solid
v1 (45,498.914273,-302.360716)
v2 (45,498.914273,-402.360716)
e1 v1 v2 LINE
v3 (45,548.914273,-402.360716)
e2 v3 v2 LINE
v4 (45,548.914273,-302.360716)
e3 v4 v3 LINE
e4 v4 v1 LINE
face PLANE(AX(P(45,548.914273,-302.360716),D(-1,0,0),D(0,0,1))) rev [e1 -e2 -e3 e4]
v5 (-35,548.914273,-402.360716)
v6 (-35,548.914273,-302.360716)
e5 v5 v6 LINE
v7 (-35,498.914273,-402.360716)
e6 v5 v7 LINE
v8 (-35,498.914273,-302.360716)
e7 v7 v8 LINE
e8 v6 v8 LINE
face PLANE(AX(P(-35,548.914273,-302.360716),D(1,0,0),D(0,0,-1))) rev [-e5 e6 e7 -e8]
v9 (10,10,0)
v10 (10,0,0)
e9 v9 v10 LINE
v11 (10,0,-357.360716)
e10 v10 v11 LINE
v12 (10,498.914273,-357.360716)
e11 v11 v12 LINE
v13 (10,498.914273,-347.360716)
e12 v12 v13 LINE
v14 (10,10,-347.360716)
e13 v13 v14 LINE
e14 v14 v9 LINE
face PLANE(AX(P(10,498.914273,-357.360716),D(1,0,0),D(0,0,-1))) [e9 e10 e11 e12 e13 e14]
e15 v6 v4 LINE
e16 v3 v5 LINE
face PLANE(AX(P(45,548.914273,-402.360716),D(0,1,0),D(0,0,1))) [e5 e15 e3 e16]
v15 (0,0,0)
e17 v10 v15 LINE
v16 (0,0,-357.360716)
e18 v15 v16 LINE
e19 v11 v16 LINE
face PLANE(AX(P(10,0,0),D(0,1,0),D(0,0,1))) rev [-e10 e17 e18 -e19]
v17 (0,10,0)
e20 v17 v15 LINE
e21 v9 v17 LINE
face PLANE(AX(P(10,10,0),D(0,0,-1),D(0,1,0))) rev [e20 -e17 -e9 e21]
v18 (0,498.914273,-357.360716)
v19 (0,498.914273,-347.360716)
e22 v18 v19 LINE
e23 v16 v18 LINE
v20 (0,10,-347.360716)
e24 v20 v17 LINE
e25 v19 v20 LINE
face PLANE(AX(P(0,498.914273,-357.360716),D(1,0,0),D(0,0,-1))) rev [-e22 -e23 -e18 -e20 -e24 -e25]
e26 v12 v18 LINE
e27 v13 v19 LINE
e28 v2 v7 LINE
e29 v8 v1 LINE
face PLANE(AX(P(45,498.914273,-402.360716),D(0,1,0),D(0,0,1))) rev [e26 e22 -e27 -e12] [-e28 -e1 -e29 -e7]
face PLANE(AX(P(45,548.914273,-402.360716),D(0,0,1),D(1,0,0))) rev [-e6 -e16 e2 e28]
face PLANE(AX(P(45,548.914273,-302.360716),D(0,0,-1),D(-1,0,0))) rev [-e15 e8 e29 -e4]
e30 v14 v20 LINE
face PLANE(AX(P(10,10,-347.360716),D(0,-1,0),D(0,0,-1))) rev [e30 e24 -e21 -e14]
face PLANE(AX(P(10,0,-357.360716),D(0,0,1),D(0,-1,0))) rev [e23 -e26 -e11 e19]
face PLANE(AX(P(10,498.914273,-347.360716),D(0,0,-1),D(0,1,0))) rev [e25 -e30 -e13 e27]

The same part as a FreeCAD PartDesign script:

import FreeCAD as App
import Part
import Sketcher
Q = App.Units.Quantity


def add_polygon(sketch, points):
    """Adds a closed chain of lines whose ends are joined by coincident constraints."""
    first, n = sketch.GeometryCount, len(points)
    for a, b in zip(points, points[1:] + points[:1]):
        sketch.addGeometry(Part.LineSegment(App.Vector(*a, 0), App.Vector(*b, 0)), False)
    for i in range(n):
        sketch.addConstraint(Sketcher.Constraint("Coincident", first + i, 2, first + (i + 1) % n, 1))

doc = App.newDocument("Part")
body = doc.addObject("PartDesign::Body", "Body")

# Sketch on YZ plane
sketch1 = doc.addObject("Sketcher::SketchObject", "Sketch")
body.addObject(sketch1)
sketch1.AttachmentSupport = (doc.YZ_Plane, [""])
sketch1.MapMode = "FlatFace"
add_polygon(sketch1, [(0, 0), (0, -357.360716), (498.914273, -357.360716), (498.914273, -347.360716), (10, -347.360716), (10, 0)])  # lines 0-5
sketch1.addConstraint(Sketcher.Constraint("Vertical", 0))
sketch1.addConstraint(Sketcher.Constraint("Horizontal", 1))
sketch1.addConstraint(Sketcher.Constraint("Vertical", 2))
sketch1.addConstraint(Sketcher.Constraint("Horizontal", 3))
sketch1.addConstraint(Sketcher.Constraint("Vertical", 4))
sketch1.addConstraint(Sketcher.Constraint("Horizontal", 5))
sketch1.addConstraint(Sketcher.Constraint("Coincident", 5, 2, -1, 1))
sketch1.addConstraint(Sketcher.Constraint("Equal", 5, 2))
sketch1.addConstraint(Sketcher.Constraint("DistanceX", 5, 2, 5, 1, Q("10 mm")))
sketch1.addConstraint(Sketcher.Constraint("DistanceX", 1, 1, 1, 2, Q("498.914273 mm")))
sketch1.addConstraint(Sketcher.Constraint("DistanceY", 0, 2, 0, 1, Q("357.360716 mm")))
pad1 = doc.addObject("PartDesign::Pad", "Pad")
body.addObject(pad1)
pad1.Profile = sketch1
pad1.Length = 10

# Sketch on XZ plane
sketch2 = doc.addObject("Sketcher::SketchObject", "Sketch001")
body.addObject(sketch2)
sketch2.AttachmentSupport = (doc.XZ_Plane, [""])
sketch2.MapMode = "FlatFace"
sketch2.AttachmentOffset = App.Placement(App.Vector(0, 0, -498.914273), App.Rotation())
add_polygon(sketch2, [(45, -302.360716), (45, -402.360716), (-35, -402.360716), (-35, -302.360716)])  # lines 0-3
sketch2.addConstraint(Sketcher.Constraint("Vertical", 0))
sketch2.addConstraint(Sketcher.Constraint("Horizontal", 1))
sketch2.addConstraint(Sketcher.Constraint("Vertical", 2))
sketch2.addConstraint(Sketcher.Constraint("Horizontal", 3))
sketch2.addConstraint(Sketcher.Constraint("DistanceX", 1, 2, 1, 1, Q("80 mm")))
sketch2.addConstraint(Sketcher.Constraint("DistanceY", 0, 2, 0, 1, Q("100 mm")))
sketch2.addConstraint(Sketcher.Constraint("DistanceX", -1, 1, 0, 2, Q("45 mm")))
sketch2.addConstraint(Sketcher.Constraint("DistanceY", 0, 2, -1, 1, Q("402.360716 mm")))
pad2 = doc.addObject("PartDesign::Pad", "Pad001")
body.addObject(pad2)
pad2.Profile = sketch2
pad2.Length = 50
pad2.Reversed = True

doc.recompute()
